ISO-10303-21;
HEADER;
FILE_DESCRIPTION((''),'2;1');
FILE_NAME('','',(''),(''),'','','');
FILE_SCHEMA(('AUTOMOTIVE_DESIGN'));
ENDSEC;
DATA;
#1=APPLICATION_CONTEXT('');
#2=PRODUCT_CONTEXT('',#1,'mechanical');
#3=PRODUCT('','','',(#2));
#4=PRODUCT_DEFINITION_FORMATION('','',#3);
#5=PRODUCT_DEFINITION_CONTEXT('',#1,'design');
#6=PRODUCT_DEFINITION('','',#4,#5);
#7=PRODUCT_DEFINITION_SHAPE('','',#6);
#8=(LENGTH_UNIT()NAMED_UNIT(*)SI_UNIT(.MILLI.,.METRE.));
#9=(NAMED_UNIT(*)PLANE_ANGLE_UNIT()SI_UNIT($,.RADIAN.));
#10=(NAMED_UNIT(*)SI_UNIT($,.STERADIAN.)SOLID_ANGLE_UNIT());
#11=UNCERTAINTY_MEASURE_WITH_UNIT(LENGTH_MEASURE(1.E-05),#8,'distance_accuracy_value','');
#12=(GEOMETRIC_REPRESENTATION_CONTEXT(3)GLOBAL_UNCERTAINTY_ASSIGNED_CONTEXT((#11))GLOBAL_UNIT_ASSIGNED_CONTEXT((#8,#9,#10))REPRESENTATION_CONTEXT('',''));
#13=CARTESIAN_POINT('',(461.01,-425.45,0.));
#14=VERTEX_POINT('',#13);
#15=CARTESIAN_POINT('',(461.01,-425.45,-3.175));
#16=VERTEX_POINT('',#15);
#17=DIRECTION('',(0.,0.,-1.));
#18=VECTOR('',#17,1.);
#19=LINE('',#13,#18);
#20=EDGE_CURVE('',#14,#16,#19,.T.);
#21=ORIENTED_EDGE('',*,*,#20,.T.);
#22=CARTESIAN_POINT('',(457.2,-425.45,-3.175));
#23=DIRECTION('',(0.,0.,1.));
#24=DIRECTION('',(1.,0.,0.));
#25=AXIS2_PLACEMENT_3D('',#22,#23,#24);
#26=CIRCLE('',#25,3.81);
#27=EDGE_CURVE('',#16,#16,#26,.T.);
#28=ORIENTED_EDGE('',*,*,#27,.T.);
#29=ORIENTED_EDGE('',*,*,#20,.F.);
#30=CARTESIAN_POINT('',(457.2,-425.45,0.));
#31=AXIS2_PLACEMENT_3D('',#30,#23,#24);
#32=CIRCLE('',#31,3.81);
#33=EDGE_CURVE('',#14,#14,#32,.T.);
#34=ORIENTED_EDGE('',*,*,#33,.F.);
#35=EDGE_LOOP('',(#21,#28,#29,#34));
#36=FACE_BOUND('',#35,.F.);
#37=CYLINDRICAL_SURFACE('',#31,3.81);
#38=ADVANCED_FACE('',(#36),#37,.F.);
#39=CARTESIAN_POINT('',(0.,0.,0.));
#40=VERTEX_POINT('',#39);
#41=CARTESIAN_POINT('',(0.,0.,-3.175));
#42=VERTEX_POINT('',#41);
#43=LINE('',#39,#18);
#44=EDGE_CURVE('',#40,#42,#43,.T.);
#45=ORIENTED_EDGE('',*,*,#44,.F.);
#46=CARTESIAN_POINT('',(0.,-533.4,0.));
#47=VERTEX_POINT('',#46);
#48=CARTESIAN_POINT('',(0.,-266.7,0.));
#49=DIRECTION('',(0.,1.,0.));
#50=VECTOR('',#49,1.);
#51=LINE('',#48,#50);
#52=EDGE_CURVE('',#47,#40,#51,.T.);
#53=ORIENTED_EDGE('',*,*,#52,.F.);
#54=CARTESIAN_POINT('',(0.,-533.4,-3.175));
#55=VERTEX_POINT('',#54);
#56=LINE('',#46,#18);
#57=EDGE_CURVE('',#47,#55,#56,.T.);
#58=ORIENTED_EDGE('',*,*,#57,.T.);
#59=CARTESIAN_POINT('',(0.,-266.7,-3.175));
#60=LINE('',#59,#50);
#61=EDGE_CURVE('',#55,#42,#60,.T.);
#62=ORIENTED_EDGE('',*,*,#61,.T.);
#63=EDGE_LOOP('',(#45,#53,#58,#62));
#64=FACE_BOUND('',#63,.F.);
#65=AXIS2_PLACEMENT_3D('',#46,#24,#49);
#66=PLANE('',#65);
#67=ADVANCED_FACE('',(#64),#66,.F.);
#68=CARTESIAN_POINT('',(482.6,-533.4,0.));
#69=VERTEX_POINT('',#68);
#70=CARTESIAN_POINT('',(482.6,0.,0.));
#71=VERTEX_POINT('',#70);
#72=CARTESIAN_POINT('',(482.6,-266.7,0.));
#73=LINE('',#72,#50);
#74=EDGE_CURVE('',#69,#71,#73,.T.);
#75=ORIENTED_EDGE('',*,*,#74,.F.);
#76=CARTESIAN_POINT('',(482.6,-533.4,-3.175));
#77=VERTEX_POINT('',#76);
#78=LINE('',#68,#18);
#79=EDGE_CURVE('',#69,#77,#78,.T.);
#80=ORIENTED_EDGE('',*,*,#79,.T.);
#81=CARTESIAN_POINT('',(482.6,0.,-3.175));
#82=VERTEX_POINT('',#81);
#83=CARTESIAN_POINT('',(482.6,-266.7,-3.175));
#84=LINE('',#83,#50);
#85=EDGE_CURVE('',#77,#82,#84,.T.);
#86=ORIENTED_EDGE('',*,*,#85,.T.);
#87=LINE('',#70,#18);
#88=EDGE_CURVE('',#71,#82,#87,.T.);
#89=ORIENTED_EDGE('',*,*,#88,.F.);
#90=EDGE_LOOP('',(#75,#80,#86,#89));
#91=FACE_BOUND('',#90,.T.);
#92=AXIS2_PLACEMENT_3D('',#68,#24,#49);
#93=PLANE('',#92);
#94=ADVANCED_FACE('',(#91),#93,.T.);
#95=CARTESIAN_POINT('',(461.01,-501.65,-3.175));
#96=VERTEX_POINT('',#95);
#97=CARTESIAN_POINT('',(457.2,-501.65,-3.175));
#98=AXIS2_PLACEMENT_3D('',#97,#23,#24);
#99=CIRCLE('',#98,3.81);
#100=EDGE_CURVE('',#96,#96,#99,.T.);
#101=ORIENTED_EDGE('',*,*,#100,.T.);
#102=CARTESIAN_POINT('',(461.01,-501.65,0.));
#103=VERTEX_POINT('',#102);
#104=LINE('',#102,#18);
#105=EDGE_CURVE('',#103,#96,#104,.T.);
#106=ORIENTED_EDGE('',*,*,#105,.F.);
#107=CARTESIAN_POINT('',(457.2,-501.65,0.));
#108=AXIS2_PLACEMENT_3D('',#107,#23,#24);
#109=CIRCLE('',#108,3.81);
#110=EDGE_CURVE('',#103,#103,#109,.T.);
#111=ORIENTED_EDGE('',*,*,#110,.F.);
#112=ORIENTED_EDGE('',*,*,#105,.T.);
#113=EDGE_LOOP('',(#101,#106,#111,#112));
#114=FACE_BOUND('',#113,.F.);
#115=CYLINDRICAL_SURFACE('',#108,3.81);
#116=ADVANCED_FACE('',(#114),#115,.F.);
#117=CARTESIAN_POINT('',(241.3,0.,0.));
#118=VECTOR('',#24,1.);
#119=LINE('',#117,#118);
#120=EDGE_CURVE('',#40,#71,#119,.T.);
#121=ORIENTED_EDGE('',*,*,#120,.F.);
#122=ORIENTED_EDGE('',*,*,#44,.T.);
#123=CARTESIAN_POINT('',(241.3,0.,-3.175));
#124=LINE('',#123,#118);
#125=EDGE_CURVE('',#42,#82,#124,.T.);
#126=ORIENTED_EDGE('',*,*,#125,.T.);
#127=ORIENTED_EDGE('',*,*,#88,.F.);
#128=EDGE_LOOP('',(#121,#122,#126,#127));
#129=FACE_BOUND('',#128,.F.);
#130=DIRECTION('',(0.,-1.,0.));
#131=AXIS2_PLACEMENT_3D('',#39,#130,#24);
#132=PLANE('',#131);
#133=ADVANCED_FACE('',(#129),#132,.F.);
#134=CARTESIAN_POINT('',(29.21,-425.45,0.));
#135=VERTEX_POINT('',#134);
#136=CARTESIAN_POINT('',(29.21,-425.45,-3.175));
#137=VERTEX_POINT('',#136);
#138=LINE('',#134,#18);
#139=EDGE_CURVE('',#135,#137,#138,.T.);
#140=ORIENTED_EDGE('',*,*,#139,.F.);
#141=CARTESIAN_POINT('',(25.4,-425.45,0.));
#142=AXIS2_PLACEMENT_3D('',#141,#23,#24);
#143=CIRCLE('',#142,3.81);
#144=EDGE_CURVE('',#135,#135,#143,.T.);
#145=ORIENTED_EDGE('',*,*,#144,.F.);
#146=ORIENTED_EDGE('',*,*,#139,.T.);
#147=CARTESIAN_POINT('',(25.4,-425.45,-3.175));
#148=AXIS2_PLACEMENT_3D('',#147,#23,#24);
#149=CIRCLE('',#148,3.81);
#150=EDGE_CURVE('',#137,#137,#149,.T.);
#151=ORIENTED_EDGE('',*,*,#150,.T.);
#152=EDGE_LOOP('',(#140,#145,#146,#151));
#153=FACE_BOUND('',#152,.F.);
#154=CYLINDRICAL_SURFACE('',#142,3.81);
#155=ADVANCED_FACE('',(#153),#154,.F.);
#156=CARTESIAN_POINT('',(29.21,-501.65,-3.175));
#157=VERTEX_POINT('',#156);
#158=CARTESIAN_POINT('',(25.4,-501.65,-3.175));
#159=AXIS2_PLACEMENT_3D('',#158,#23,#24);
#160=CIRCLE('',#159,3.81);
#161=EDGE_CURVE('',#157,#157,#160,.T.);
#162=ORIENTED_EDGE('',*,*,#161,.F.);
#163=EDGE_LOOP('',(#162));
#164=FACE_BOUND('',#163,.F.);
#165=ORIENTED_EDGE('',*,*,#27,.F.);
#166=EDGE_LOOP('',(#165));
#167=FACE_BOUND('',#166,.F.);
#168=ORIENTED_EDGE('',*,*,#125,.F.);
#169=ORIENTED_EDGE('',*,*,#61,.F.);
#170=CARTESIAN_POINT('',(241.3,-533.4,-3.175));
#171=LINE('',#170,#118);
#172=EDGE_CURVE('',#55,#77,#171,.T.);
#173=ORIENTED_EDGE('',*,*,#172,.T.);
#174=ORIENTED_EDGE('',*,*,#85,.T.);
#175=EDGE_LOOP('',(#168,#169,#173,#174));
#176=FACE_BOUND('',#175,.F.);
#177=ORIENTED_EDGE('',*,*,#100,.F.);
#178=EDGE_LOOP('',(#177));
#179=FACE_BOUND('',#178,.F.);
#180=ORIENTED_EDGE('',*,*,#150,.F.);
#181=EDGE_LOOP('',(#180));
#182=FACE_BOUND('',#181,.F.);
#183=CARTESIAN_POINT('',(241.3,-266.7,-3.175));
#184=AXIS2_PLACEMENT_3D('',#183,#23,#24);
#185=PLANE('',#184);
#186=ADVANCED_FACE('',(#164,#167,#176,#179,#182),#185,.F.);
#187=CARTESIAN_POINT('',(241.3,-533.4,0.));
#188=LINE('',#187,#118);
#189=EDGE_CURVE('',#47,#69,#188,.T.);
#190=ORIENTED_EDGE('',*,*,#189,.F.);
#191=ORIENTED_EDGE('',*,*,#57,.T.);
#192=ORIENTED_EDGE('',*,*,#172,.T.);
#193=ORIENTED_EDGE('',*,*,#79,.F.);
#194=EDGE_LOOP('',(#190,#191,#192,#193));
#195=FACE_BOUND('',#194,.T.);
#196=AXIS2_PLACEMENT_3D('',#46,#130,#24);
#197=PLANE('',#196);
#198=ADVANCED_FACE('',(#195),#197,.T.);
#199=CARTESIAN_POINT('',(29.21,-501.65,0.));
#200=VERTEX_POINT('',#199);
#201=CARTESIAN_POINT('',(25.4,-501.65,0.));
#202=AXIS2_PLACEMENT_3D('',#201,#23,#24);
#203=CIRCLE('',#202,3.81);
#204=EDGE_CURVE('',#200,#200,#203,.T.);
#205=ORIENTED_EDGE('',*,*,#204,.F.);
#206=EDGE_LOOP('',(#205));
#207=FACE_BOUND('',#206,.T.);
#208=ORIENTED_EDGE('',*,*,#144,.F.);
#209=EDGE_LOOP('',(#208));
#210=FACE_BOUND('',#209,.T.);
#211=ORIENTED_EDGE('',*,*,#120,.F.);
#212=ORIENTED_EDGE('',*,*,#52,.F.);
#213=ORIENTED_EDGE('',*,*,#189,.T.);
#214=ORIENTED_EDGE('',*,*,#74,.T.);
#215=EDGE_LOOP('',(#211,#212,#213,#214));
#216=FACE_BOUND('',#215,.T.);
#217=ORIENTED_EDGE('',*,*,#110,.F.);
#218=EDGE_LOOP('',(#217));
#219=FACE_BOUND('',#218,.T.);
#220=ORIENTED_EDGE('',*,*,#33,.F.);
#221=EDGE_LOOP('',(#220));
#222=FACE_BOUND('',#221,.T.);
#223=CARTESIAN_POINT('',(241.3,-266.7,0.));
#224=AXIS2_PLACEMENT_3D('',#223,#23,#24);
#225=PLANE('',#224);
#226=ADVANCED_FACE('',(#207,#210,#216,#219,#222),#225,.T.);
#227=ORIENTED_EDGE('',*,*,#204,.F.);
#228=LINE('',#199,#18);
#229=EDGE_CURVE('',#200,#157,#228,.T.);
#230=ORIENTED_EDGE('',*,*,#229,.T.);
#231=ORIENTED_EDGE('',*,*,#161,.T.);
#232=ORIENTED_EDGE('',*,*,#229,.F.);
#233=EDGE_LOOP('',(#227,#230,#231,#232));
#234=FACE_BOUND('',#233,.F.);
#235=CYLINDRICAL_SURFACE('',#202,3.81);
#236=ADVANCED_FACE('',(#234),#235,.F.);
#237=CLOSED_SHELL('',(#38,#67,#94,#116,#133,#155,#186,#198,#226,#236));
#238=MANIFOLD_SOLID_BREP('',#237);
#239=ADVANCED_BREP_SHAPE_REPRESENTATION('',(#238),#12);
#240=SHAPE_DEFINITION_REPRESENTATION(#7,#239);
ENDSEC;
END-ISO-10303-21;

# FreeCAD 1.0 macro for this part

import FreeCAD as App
import Part
import Sketcher

V = App.Vector
Q = App.Units.Quantity

doc = App.newDocument("Part")
body = doc.addObject("PartDesign::Body", "Body")

# Sketch on XY plane
sketch1 = doc.addObject("Sketcher::SketchObject", "Sketch")
body.addObject(sketch1)
sketch1.AttachmentSupport = (doc.XY_Plane, [""])
sketch1.MapMode = "FlatFace"
sketch1.addGeometry([
    Part.LineSegment(V(0, 0, 0), V(0, -533.4, 0)),
    Part.LineSegment(V(0, -533.4, 0), V(482.6, -533.4, 0)),
    Part.LineSegment(V(482.6, -533.4, 0), V(482.6, 0, 0)),
    Part.LineSegment(V(482.6, 0, 0), V(0, 0, 0)),
], False)
sketch1.addConstraint([
    Sketcher.Constraint("Coincident", 0, 2, 1, 1),
    Sketcher.Constraint("Coincident", 1, 2, 2, 1),
    Sketcher.Constraint("Coincident", 2, 2, 3, 1),
    Sketcher.Constraint("Coincident", 3, 2, 0, 1),
    Sketcher.Constraint("Vertical", 0),
    Sketcher.Constraint("Horizontal", 1),
    Sketcher.Constraint("Vertical", 2),
    Sketcher.Constraint("Horizontal", 3),
    Sketcher.Constraint("Coincident", 3, 2, -1, 1),
    Sketcher.Constraint("DistanceX", 1, 1, 1, 2, Q("19 in")),
    Sketcher.Constraint("DistanceY", 0, 2, 0, 1, Q("21 in")),
])
pad1 = doc.addObject("PartDesign::Pad", "Pad")
body.addObject(pad1)
pad1.Profile = sketch1
pad1.Length = Q("0.125 in")
pad1.Reversed = True

# Sketch on XY plane
sketch2 = doc.addObject("Sketcher::SketchObject", "Sketch001")
body.addObject(sketch2)
sketch2.AttachmentSupport = (doc.XY_Plane, [""])
sketch2.MapMode = "FlatFace"
sketch2.addGeometry([
    Part.Circle(V(25.4, -425.45, 0), V(0, 0, 1), 3.81),
    Part.Circle(V(457.2, -425.45, 0), V(0, 0, 1), 3.81),
    Part.Circle(V(457.2, -501.65, 0), V(0, 0, 1), 3.81),
    Part.Circle(V(25.4, -501.65, 0), V(0, 0, 1), 3.81),
], False)
sketch2.addConstraint([
    Sketcher.Constraint("Equal", 0, 1),
    Sketcher.Constraint("Equal", 1, 2),
    Sketcher.Constraint("Equal", 2, 3),
    Sketcher.Constraint("Horizontal", 0, 3, 1, 3),
    Sketcher.Constraint("Horizontal", 2, 3, 3, 3),
    Sketcher.Constraint("Vertical", 1, 3, 2, 3),
    Sketcher.Constraint("Vertical", 0, 3, 3, 3),
    Sketcher.Constraint("Diameter", 0, Q("0.3 in")),
    Sketcher.Constraint("DistanceX", -1, 1, 0, 3, Q("1 in")),
    Sketcher.Constraint("DistanceX", -1, 1, 1, 3, Q("18 in")),
    Sketcher.Constraint("DistanceY", 2, 3, 1, 3, Q("3 in")),
    Sketcher.Constraint("DistanceY", 0, 3, -1, 1, Q("16.75 in")),
])
pocket1 = doc.addObject("PartDesign::Pocket", "Pocket")
body.addObject(pocket1)
pocket1.Profile = sketch2
pocket1.Type = "ThroughAll"

doc.recompute()
